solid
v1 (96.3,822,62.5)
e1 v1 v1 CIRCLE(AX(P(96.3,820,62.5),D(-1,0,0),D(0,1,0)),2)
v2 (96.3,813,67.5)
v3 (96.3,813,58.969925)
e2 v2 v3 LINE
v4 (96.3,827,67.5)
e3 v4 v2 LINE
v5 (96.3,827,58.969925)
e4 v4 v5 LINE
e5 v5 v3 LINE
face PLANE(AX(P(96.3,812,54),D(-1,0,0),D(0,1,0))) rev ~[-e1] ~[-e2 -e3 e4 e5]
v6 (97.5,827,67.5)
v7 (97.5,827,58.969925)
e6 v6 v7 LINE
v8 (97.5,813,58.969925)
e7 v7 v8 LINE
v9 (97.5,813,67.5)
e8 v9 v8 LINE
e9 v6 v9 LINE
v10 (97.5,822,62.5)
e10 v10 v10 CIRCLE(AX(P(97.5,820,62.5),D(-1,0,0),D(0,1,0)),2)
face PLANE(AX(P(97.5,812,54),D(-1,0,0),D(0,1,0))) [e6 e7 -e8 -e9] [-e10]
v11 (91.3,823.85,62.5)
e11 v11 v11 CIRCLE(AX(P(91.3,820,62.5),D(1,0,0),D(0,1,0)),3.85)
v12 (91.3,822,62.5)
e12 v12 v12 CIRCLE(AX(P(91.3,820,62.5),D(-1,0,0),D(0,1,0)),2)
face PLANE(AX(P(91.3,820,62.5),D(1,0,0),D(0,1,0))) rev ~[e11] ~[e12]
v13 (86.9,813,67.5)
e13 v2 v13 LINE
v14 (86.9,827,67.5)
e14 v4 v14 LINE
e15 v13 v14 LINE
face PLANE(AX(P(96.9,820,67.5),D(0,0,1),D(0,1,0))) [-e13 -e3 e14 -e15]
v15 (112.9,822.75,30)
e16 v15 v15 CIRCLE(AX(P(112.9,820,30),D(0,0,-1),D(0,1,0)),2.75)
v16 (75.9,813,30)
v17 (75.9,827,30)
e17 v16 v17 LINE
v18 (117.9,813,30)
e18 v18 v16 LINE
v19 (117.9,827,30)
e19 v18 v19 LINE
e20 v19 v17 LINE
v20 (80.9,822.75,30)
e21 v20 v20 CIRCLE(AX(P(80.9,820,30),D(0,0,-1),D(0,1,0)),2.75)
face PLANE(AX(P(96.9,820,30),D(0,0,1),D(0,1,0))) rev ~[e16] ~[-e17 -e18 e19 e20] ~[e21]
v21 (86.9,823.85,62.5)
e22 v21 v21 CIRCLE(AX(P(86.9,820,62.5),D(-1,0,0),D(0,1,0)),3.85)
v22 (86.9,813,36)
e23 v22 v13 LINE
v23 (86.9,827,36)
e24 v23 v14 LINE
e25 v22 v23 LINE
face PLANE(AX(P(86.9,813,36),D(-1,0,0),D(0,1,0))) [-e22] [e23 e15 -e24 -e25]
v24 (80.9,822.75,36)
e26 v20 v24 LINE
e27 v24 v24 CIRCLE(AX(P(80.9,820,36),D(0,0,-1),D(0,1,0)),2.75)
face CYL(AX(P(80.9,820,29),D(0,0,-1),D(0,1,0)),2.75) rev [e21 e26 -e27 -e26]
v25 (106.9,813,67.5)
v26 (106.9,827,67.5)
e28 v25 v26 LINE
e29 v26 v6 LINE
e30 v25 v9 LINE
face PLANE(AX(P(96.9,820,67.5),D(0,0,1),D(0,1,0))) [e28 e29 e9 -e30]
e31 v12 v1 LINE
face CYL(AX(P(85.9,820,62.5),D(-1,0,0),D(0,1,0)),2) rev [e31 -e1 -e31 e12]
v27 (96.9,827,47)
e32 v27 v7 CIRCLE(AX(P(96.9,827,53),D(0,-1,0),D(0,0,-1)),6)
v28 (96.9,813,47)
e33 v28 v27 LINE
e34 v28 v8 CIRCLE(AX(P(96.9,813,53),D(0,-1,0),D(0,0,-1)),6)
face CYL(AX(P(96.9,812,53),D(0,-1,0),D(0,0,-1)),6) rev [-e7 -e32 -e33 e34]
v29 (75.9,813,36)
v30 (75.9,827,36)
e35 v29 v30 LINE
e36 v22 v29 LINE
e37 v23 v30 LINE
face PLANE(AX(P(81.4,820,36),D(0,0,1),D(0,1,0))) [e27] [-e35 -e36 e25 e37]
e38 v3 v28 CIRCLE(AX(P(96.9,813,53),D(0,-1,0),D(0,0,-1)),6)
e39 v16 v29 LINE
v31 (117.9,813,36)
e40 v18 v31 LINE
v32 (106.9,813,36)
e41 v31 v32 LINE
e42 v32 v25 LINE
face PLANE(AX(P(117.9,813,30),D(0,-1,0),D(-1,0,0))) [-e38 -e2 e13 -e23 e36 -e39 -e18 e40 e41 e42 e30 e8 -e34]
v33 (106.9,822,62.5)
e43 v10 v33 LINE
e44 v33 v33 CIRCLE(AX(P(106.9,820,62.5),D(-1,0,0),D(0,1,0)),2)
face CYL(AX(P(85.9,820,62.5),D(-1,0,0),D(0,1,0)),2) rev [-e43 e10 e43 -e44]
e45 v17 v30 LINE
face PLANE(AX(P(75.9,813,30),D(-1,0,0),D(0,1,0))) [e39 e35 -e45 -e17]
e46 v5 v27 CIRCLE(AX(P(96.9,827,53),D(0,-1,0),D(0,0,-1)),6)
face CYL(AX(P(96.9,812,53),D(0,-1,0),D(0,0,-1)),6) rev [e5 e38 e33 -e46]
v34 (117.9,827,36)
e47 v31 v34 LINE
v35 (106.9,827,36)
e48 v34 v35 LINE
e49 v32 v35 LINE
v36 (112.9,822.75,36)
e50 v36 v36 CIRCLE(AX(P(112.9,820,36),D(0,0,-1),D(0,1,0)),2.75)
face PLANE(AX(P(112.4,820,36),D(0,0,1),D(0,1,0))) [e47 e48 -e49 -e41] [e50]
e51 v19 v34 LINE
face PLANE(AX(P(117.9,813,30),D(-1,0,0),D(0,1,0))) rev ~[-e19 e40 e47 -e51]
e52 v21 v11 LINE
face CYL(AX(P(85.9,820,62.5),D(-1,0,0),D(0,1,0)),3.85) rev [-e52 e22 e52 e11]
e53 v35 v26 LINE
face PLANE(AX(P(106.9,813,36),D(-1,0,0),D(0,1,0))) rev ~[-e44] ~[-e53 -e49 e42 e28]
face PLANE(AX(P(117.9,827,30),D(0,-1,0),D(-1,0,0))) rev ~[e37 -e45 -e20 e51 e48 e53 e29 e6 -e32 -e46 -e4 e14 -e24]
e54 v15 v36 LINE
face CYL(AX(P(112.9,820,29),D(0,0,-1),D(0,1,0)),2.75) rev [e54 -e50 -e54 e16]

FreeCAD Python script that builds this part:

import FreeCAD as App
import Part
import Sketcher


def add_polygon(sketch, points):
    """Adds a closed chain of lines whose ends are joined by coincident constraints."""
    first, n = sketch.GeometryCount, len(points)
    for a, b in zip(points, points[1:] + points[:1]):
        sketch.addGeometry(Part.LineSegment(App.Vector(*a, 0), App.Vector(*b, 0)), False)
    for i in range(n):
        sketch.addConstraint(Sketcher.Constraint("Coincident", first + i, 2, first + (i + 1) % n, 1))

doc = App.newDocument("Part")
params = doc.addObject("Spreadsheet::Sheet", "Params")
for row, (alias, value) in enumerate([
    ("sketch1_diameter", "5.5 mm"),
    ("pad1_length", "8 mm"),
    ("sketch2_diameter", "5.5 mm"),
    ("pad2_length", "8 mm"),
    ("sketch3_diameter", "4 mm"),
    ("pad3_length", "22 mm"),
    ("sketch4_width", "16 mm"),
    ("sketch4_height", "1.2 mm"),
    ("pad4_length", "15.5 mm"),
    ("sketch5_diameter", "12 mm"),
    ("pad5_length", "16 mm"),
    ("sketch6_diameter", "7.7 mm"),
    ("pad6_length", "5.4 mm"),
    ("sketch7_width", "14 mm"),
    ("sketch7_height", "11 mm"),
    ("pad7_length", "31.5 mm"),
    ("sketch8_width", "14 mm"),
    ("sketch8_height", "11 mm"),
    ("pad8_length", "31.5 mm"),
    ("sketch9_width", "14 mm"),
    ("sketch9_height", "42 mm"),
    ("pad9_length", "37.5 mm"),
], start=1):
    params.set(f"A{row}", alias)
    params.set(f"B{row}", "=" + value)
    params.setAlias(f"B{row}", alias)

body = doc.addObject("PartDesign::Body", "Body")

sketch1 = body.newObject("Sketcher::SketchObject", "Sketch")
sketch1.AttachmentSupport = (doc.getObject("XY_Plane"), [""])
sketch1.MapMode = "FlatFace"
sketch1.AttachmentOffset = App.Placement(App.Vector(0, 0, -1), App.Rotation())
sketch1.addGeometry(Part.Circle(App.Vector(7, -16, 0), App.Vector(0, 0, 1), 2.8), False)
sketch1.addConstraint(Sketcher.Constraint("Diameter", 0, 5.5))
sketch1.addConstraint(Sketcher.Constraint("DistanceX", -1, 1, 0, 3, 7.0))
sketch1.addConstraint(Sketcher.Constraint("DistanceY", 0, 3, -1, 1, 16.0))
sketch1.setExpression("Constraints[0]", "Params.sketch1_diameter")
pad1 = body.newObject("PartDesign::Pad", "Pad")
pad1.Profile = sketch1
pad1.setExpression("Length", "Params.pad1_length")
body2 = doc.addObject("PartDesign::Body", "Body001")
body2.AllowCompound = True

sketch2 = body2.newObject("Sketcher::SketchObject", "Sketch001")
sketch2.AttachmentSupport = (doc.getObject("XY_Plane001"), [""])
sketch2.MapMode = "FlatFace"
sketch2.AttachmentOffset = App.Placement(App.Vector(0, 0, -1), App.Rotation())
sketch2.addGeometry(Part.Circle(App.Vector(7, 16, 0), App.Vector(0, 0, 1), 2.8), False)
sketch2.addConstraint(Sketcher.Constraint("Diameter", 0, 5.5))
sketch2.addConstraint(Sketcher.Constraint("DistanceX", -1, 1, 0, 3, 7.0))
sketch2.addConstraint(Sketcher.Constraint("DistanceY", -1, 1, 0, 3, 16.0))
sketch2.setExpression("Constraints[0]", "Params.sketch2_diameter")
pad2 = body2.newObject("PartDesign::Pad", "Pad001")
pad2.Profile = sketch2
pad2.setExpression("Length", "Params.pad2_length")
doc.recompute()

boolean = body2.newObject("PartDesign::Boolean", "Boolean")
boolean.Type = "Fuse"
boolean.addObjects([body])
body3 = doc.addObject("PartDesign::Body", "Body002")
body3.AllowCompound = True
doc.recompute()

body2.Placement = App.Placement(App.Vector(0, -7, 0), App.Rotation(App.Vector(0, 0, 1), 90))
boolean2 = body3.newObject("PartDesign::Boolean", "Boolean001")
boolean2.Type = "Fuse"
boolean2.addObjects([body2])
body4 = doc.addObject("PartDesign::Body", "Body003")

sketch3 = body4.newObject("Sketcher::SketchObject", "Sketch002")
sketch3.AttachmentSupport = (doc.getObject("XY_Plane003"), [""])
sketch3.MapMode = "FlatFace"
sketch3.addGeometry(Part.Circle(App.Vector(0, 0, 0), App.Vector(0, 0, 1), 2), False)
sketch3.addConstraint(Sketcher.Constraint("Coincident", 0, 3, -1, 1))
sketch3.addConstraint(Sketcher.Constraint("Diameter", 0, 4.0))
sketch3.setExpression("Constraints[1]", "Params.sketch3_diameter")
pad3 = body4.newObject("PartDesign::Pad", "Pad002")
pad3.Profile = sketch3
pad3.setExpression("Length", "Params.pad3_length")
body5 = doc.addObject("PartDesign::Body", "Body004")
doc.recompute()

body4.Placement = App.Placement(App.Vector(0, 0, 0), App.Rotation(App.Vector(1, 0, 0), 90))
boolean3 = body5.newObject("PartDesign::Boolean", "Boolean002")
boolean3.Type = "Fuse"
boolean3.addObjects([body4])
body6 = doc.addObject("PartDesign::Body", "Body005")
doc.recompute()

body5.Placement = App.Placement(App.Vector(7, 11, 32.5), App.Rotation(App.Vector(0, 0, 1), 0))
boolean4 = body6.newObject("PartDesign::Boolean", "Boolean003")
boolean4.Type = "Fuse"
boolean4.addObjects([body5])
body7 = doc.addObject("PartDesign::Body", "Body006")

sketch4 = body7.newObject("Sketcher::SketchObject", "Sketch003")
sketch4.AttachmentSupport = (doc.getObject("XY_Plane006"), [""])
sketch4.MapMode = "FlatFace"
sketch4.AttachmentOffset = App.Placement(App.Vector(0, 0, 24), App.Rotation())
add_polygon(sketch4, [(-1, 0.6), (-1, -0.6), (15, -0.6), (15, 0.6)])
sketch4.addConstraint(Sketcher.Constraint("Vertical", 0))
sketch4.addConstraint(Sketcher.Constraint("Horizontal", 1))
sketch4.addConstraint(Sketcher.Constraint("Vertical", 2))
sketch4.addConstraint(Sketcher.Constraint("Horizontal", 3))
sketch4.addConstraint(Sketcher.Constraint("DistanceX", 1, 1, 1, 2, 16.0))
sketch4.addConstraint(Sketcher.Constraint("DistanceY", 0, 2, 0, 1, 1.2))
sketch4.addConstraint(Sketcher.Constraint("DistanceX", 0, 2, -1, 1, 1.0))
sketch4.addConstraint(Sketcher.Constraint("DistanceY", 0, 2, -1, 1, 0.6))
sketch4.setExpression("Constraints[8]", "Params.sketch4_width")
sketch4.setExpression("Constraints[9]", "Params.sketch4_height")
pad4 = body7.newObject("PartDesign::Pad", "Pad003")
pad4.Profile = sketch4
pad4.setExpression("Length", "Params.pad4_length")
body8 = doc.addObject("PartDesign::Body", "Body007")

sketch5 = body8.newObject("Sketcher::SketchObject", "Sketch004")
sketch5.AttachmentSupport = (doc.getObject("XY_Plane007"), [""])
sketch5.MapMode = "FlatFace"
sketch5.addGeometry(Part.Circle(App.Vector(0, 0, 0), App.Vector(0, 0, 1), 6), False)
sketch5.addConstraint(Sketcher.Constraint("Coincident", 0, 3, -1, 1))
sketch5.addConstraint(Sketcher.Constraint("Diameter", 0, 12.0))
sketch5.setExpression("Constraints[1]", "Params.sketch5_diameter")
pad5 = body8.newObject("PartDesign::Pad", "Pad004")
pad5.Profile = sketch5
pad5.setExpression("Length", "Params.pad5_length")
body9 = doc.addObject("PartDesign::Body", "Body008")
doc.recompute()

body8.Placement = App.Placement(App.Vector(0, 0, 0), App.Rotation(App.Vector(0, 1, 0), 90))
boolean5 = body9.newObject("PartDesign::Boolean", "Boolean004")
boolean5.Type = "Fuse"
boolean5.addObjects([body8])
body10 = doc.addObject("PartDesign::Body", "Body009")
doc.recompute()

body9.Placement = App.Placement(App.Vector(-1, 0, 23), App.Rotation(App.Vector(0, 0, 1), 0))
boolean6 = body10.newObject("PartDesign::Boolean", "Boolean005")
boolean6.Type = "Fuse"
boolean6.addObjects([body9])
body11 = doc.addObject("PartDesign::Body", "Body010")

sketch6 = body11.newObject("Sketcher::SketchObject", "Sketch005")
sketch6.AttachmentSupport = (doc.getObject("XY_Plane010"), [""])
sketch6.MapMode = "FlatFace"
sketch6.addGeometry(Part.Circle(App.Vector(0, 0, 0), App.Vector(0, 0, 1), 3.9), False)
sketch6.addConstraint(Sketcher.Constraint("Coincident", 0, 3, -1, 1))
sketch6.addConstraint(Sketcher.Constraint("Diameter", 0, 7.7))
sketch6.setExpression("Constraints[1]", "Params.sketch6_diameter")
pad6 = body11.newObject("PartDesign::Pad", "Pad005")
pad6.Profile = sketch6
pad6.setExpression("Length", "Params.pad6_length")
body12 = doc.addObject("PartDesign::Body", "Body011")
doc.recompute()

body11.Placement = App.Placement(App.Vector(0, 0, 0), App.Rotation(App.Vector(1, 0, 0), 90))
boolean7 = body12.newObject("PartDesign::Boolean", "Boolean006")
boolean7.Type = "Fuse"
boolean7.addObjects([body11])
body13 = doc.addObject("PartDesign::Body", "Body012")
doc.recompute()

body12.Placement = App.Placement(App.Vector(7, 11, 32.5), App.Rotation(App.Vector(0, 0, 1), 0))
boolean8 = body13.newObject("PartDesign::Boolean", "Boolean007")
boolean8.Type = "Fuse"
boolean8.addObjects([body12])
doc.recompute()

boolean9 = body13.newObject("PartDesign::Boolean", "Boolean008")
boolean9.Type = "Fuse"
boolean9.addObjects([body6])
doc.recompute()

boolean10 = body13.newObject("PartDesign::Boolean", "Boolean009")
boolean10.Type = "Fuse"
boolean10.addObjects([body7])
doc.recompute()

boolean11 = body13.newObject("PartDesign::Boolean", "Boolean010")
boolean11.Type = "Fuse"
boolean11.addObjects([body10])
body14 = doc.addObject("PartDesign::Body", "Body013")

sketch7 = body14.newObject("Sketcher::SketchObject", "Sketch006")
sketch7.AttachmentSupport = (doc.getObject("XY_Plane013"), [""])
sketch7.MapMode = "FlatFace"
sketch7.AttachmentOffset = App.Placement(App.Vector(0, 0, 6), App.Rotation())
add_polygon(sketch7, [(0, -10), (0, -21), (14, -21), (14, -10)])
sketch7.addConstraint(Sketcher.Constraint("Vertical", 0))
sketch7.addConstraint(Sketcher.Constraint("Horizontal", 1))
sketch7.addConstraint(Sketcher.Constraint("Vertical", 2))
sketch7.addConstraint(Sketcher.Constraint("Horizontal", 3))
sketch7.addConstraint(Sketcher.Constraint("PointOnObject", 0, 2, -2))
sketch7.addConstraint(Sketcher.Constraint("DistanceX", 1, 1, 1, 2, 14.0))
sketch7.addConstraint(Sketcher.Constraint("DistanceY", 0, 2, 0, 1, 11.0))
sketch7.addConstraint(Sketcher.Constraint("DistanceY", 0, 2, -1, 1, 21.0))
sketch7.setExpression("Constraints[9]", "Params.sketch7_width")
sketch7.setExpression("Constraints[10]", "Params.sketch7_height")
pad7 = body14.newObject("PartDesign::Pad", "Pad006")
pad7.Profile = sketch7
pad7.setExpression("Length", "Params.pad7_length")
body15 = doc.addObject("PartDesign::Body", "Body014")
body15.AllowCompound = True

sketch8 = body15.newObject("Sketcher::SketchObject", "Sketch007")
sketch8.AttachmentSupport = (doc.getObject("XY_Plane014"), [""])
sketch8.MapMode = "FlatFace"
sketch8.AttachmentOffset = App.Placement(App.Vector(0, 0, 6), App.Rotation())
add_polygon(sketch8, [(0, 21), (0, 10), (14, 10), (14, 21)])
sketch8.addConstraint(Sketcher.Constraint("Vertical", 0))
sketch8.addConstraint(Sketcher.Constraint("Horizontal", 1))
sketch8.addConstraint(Sketcher.Constraint("Vertical", 2))
sketch8.addConstraint(Sketcher.Constraint("Horizontal", 3))
sketch8.addConstraint(Sketcher.Constraint("PointOnObject", 0, 2, -2))
sketch8.addConstraint(Sketcher.Constraint("DistanceX", 1, 1, 1, 2, 14.0))
sketch8.addConstraint(Sketcher.Constraint("DistanceY", 0, 2, 0, 1, 11.0))
sketch8.addConstraint(Sketcher.Constraint("DistanceY", -1, 1, 0, 2, 10.0))
sketch8.setExpression("Constraints[9]", "Params.sketch8_width")
sketch8.setExpression("Constraints[10]", "Params.sketch8_height")
pad8 = body15.newObject("PartDesign::Pad", "Pad007")
pad8.Profile = sketch8
pad8.setExpression("Length", "Params.pad8_length")
doc.recompute()

boolean12 = body15.newObject("PartDesign::Boolean", "Boolean011")
boolean12.Type = "Fuse"
boolean12.addObjects([body14])
body16 = doc.addObject("PartDesign::Body", "Body015")

sketch9 = body16.newObject("Sketcher::SketchObject", "Sketch008")
sketch9.AttachmentSupport = (doc.getObject("XY_Plane015"), [""])
sketch9.MapMode = "FlatFace"
add_polygon(sketch9, [(0, 21), (0, -21), (14, -21), (14, 21)])
sketch9.addConstraint(Sketcher.Constraint("Vertical", 0))
sketch9.addConstraint(Sketcher.Constraint("Horizontal", 1))
sketch9.addConstraint(Sketcher.Constraint("Vertical", 2))
sketch9.addConstraint(Sketcher.Constraint("Horizontal", 3))
sketch9.addConstraint(Sketcher.Constraint("Symmetric", 0, 2, 3, 2, -1, 1))
sketch9.addConstraint(Sketcher.Constraint("DistanceX", 1, 1, 1, 2, 14.0))
sketch9.addConstraint(Sketcher.Constraint("DistanceY", 0, 2, 0, 1, 42.0))
sketch9.setExpression("Constraints[9]", "Params.sketch9_width")
sketch9.setExpression("Constraints[10]", "Params.sketch9_height")
pad9 = body16.newObject("PartDesign::Pad", "Pad008")
pad9.Profile = sketch9
pad9.setExpression("Length", "Params.pad9_length")
doc.recompute()

boolean13 = body16.newObject("PartDesign::Boolean", "Boolean012")
boolean13.Type = "Cut"
boolean13.addObjects([body15])
doc.recompute()

boolean14 = body16.newObject("PartDesign::Boolean", "Boolean013")
boolean14.Type = "Cut"
boolean14.addObjects([body13])
body17 = doc.addObject("PartDesign::Body", "Body016")
doc.recompute()

body16.Placement = App.Placement(App.Vector(0, -7, 0), App.Rotation(App.Vector(0, 0, 1), 90))
boolean15 = body17.newObject("PartDesign::Boolean", "Boolean014")
boolean15.Type = "Fuse"
boolean15.addObjects([body16])
doc.recompute()

boolean16 = body17.newObject("PartDesign::Boolean", "Boolean015")
boolean16.Type = "Cut"
boolean16.addObjects([body3])
body18 = doc.addObject("PartDesign::Body", "Body017")
doc.recompute()

body17.Placement = App.Placement(App.Vector(96.9, 286, 30), App.Rotation(App.Vector(0, 0, 1), 0))
boolean17 = body18.newObject("PartDesign::Boolean", "Boolean016")
boolean17.Type = "Fuse"
boolean17.addObjects([body17])
body19 = doc.addObject("PartDesign::Body", "Body018")
doc.recompute()

body18.Placement = App.Placement(App.Vector(0, 534, 0), App.Rotation(App.Vector(0, 0, 1), 0))
boolean18 = body19.newObject("PartDesign::Boolean", "Boolean017")
boolean18.Type = "Fuse"
boolean18.addObjects([body18])

doc.recompute()
